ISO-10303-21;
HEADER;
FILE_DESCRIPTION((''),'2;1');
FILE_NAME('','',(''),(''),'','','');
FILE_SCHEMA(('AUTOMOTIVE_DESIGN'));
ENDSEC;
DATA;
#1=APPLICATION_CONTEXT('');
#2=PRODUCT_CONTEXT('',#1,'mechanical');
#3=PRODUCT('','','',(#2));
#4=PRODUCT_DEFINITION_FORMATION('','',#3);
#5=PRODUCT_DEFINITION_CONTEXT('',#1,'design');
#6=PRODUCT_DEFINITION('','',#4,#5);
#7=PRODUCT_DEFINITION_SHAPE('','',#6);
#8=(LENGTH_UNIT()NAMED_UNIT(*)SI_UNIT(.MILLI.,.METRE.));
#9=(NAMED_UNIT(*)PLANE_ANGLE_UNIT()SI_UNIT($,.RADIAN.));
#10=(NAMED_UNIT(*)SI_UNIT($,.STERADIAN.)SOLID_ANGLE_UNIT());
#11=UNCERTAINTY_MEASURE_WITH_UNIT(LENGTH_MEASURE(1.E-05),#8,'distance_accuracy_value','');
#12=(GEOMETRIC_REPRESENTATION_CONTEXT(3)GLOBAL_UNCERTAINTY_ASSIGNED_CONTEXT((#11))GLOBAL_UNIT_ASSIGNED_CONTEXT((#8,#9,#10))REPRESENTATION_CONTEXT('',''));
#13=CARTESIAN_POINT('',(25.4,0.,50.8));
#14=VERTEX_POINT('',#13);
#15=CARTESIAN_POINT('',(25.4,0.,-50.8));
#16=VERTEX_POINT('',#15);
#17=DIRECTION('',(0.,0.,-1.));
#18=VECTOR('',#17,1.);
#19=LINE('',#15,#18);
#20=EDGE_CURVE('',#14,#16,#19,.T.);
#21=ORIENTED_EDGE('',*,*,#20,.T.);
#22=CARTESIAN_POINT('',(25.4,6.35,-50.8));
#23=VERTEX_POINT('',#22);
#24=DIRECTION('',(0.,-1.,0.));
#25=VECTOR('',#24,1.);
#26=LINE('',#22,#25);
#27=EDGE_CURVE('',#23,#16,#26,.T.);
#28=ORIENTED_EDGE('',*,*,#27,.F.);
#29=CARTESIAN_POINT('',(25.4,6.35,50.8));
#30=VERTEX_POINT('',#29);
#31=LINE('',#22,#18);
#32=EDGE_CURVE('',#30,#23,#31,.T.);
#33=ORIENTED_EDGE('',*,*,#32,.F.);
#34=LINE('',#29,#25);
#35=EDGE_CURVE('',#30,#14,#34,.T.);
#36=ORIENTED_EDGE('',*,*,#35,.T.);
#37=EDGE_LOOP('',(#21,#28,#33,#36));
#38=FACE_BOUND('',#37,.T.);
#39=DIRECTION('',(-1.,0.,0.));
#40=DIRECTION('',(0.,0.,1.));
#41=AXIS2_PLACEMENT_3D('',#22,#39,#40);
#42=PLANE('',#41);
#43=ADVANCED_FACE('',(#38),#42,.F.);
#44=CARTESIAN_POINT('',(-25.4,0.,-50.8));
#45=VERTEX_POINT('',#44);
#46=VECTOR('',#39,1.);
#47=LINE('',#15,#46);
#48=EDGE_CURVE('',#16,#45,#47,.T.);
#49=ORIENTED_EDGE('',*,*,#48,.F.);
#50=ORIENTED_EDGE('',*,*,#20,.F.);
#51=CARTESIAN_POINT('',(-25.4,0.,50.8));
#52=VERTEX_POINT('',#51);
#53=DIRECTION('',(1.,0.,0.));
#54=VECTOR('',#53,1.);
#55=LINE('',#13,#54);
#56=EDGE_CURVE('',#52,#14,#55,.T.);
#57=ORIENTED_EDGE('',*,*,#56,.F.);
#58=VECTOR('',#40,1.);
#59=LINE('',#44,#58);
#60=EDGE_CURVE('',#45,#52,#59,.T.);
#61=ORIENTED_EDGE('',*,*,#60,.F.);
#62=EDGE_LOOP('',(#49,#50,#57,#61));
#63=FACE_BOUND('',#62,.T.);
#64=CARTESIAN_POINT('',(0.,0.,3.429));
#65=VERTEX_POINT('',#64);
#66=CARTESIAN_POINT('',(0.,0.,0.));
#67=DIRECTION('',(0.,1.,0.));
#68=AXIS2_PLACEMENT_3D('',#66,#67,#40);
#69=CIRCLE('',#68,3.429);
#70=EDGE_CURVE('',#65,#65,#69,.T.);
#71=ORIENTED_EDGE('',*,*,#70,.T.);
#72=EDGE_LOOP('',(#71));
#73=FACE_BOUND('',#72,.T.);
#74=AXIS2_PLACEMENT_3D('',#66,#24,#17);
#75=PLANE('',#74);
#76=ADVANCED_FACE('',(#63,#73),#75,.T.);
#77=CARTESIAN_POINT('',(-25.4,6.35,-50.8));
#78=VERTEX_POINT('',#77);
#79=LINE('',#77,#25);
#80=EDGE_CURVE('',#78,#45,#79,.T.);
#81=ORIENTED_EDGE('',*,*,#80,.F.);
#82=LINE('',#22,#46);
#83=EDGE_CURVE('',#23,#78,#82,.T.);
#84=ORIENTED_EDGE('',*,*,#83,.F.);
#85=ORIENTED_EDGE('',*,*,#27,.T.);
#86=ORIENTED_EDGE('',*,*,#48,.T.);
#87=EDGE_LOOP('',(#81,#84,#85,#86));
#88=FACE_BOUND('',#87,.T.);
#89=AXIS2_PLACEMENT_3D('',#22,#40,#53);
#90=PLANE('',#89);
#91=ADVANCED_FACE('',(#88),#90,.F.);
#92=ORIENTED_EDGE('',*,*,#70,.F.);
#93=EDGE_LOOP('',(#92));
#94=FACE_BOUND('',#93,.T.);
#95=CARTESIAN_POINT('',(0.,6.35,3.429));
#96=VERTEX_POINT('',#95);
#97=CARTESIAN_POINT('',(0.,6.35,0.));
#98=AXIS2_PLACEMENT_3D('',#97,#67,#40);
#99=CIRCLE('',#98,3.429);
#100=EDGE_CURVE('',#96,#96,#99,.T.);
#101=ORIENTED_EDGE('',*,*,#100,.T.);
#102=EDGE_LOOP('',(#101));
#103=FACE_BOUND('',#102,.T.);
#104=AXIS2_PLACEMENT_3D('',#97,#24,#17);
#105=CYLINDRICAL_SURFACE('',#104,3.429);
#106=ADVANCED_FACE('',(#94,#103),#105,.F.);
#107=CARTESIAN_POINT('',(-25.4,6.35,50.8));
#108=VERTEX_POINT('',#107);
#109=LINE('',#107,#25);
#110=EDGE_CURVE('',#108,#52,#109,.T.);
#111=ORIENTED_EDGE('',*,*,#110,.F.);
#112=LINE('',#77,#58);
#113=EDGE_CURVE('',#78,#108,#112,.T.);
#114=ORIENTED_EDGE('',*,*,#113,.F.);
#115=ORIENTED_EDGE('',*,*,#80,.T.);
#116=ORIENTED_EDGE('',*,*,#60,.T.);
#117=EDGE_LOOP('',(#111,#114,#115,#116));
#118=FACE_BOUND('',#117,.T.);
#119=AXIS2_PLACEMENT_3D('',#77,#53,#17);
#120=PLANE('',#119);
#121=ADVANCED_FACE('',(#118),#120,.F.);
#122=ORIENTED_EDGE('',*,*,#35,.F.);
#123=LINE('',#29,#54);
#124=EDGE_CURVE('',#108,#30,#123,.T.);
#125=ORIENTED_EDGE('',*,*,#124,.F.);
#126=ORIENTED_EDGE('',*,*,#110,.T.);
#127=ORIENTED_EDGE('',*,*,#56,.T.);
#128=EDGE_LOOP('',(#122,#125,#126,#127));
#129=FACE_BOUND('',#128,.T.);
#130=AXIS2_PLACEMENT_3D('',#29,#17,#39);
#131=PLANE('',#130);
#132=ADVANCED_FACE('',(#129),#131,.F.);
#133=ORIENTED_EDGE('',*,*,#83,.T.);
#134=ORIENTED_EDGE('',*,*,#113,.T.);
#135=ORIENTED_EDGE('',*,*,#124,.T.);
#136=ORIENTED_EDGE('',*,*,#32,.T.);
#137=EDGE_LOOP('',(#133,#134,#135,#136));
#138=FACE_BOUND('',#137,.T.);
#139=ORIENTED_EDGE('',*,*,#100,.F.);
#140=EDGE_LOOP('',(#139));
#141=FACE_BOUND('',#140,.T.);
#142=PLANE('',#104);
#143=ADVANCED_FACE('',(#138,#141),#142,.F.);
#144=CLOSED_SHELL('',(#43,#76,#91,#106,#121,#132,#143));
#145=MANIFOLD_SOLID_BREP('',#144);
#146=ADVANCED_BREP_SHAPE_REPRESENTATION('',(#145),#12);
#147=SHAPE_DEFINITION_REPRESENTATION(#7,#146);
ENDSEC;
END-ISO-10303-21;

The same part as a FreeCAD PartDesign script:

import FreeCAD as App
import Part
import Sketcher
from FreeCAD import Vector
Q = App.Units.Quantity


def add_polygon(sketch, points):
    """Adds a closed chain of lines whose ends are joined by coincident constraints."""
    first, n = sketch.GeometryCount, len(points)
    for a, b in zip(points, points[1:] + points[:1]):
        sketch.addGeometry(Part.LineSegment(App.Vector(*a, 0), App.Vector(*b, 0)), False)
    for i in range(n):
        sketch.addConstraint(Sketcher.Constraint("Coincident", first + i, 2, first + (i + 1) % n, 1))

doc = App.newDocument("Part")
body = doc.addObject("PartDesign::Body", "Body")

# Sketch on XZ plane
sketch1 = body.newObject("Sketcher::SketchObject", "Sketch")
sketch1.AttachmentSupport = (doc.getObject("XZ_Plane"), [""])
sketch1.MapMode = "FlatFace"
add_polygon(sketch1, [(-25.4, -50.8), (-25.4, 50.8), (25.4, 50.8), (25.4, -50.8)])  # lines 0-3
sketch1.addGeometry(Part.Circle(Vector(0, 0, 0), Vector(0, 0, 1), 3.429), False)  # 4
sketch1.addConstraint(Sketcher.Constraint("Vertical", 0))
sketch1.addConstraint(Sketcher.Constraint("Horizontal", 1))
sketch1.addConstraint(Sketcher.Constraint("Vertical", 2))
sketch1.addConstraint(Sketcher.Constraint("Horizontal", 3))
sketch1.addConstraint(Sketcher.Constraint("Coincident", 4, 3, -1, 1))
sketch1.addConstraint(Sketcher.Constraint("Symmetric", 0, 2, 2, 2, -1, 1))
sketch1.addConstraint(Sketcher.Constraint("Diameter", 4, Q("0.27 in")))
sketch1.addConstraint(Sketcher.Constraint("DistanceX", 1, 1, 1, 2, Q("2 in")))
sketch1.addConstraint(Sketcher.Constraint("DistanceY", 0, 1, 0, 2, Q("4 in")))
pad1 = body.newObject("PartDesign::Pad", "Pad")
pad1.Profile = sketch1
pad1.Length = Q("0.25 in")
pad1.Reversed = True

doc.recompute()
